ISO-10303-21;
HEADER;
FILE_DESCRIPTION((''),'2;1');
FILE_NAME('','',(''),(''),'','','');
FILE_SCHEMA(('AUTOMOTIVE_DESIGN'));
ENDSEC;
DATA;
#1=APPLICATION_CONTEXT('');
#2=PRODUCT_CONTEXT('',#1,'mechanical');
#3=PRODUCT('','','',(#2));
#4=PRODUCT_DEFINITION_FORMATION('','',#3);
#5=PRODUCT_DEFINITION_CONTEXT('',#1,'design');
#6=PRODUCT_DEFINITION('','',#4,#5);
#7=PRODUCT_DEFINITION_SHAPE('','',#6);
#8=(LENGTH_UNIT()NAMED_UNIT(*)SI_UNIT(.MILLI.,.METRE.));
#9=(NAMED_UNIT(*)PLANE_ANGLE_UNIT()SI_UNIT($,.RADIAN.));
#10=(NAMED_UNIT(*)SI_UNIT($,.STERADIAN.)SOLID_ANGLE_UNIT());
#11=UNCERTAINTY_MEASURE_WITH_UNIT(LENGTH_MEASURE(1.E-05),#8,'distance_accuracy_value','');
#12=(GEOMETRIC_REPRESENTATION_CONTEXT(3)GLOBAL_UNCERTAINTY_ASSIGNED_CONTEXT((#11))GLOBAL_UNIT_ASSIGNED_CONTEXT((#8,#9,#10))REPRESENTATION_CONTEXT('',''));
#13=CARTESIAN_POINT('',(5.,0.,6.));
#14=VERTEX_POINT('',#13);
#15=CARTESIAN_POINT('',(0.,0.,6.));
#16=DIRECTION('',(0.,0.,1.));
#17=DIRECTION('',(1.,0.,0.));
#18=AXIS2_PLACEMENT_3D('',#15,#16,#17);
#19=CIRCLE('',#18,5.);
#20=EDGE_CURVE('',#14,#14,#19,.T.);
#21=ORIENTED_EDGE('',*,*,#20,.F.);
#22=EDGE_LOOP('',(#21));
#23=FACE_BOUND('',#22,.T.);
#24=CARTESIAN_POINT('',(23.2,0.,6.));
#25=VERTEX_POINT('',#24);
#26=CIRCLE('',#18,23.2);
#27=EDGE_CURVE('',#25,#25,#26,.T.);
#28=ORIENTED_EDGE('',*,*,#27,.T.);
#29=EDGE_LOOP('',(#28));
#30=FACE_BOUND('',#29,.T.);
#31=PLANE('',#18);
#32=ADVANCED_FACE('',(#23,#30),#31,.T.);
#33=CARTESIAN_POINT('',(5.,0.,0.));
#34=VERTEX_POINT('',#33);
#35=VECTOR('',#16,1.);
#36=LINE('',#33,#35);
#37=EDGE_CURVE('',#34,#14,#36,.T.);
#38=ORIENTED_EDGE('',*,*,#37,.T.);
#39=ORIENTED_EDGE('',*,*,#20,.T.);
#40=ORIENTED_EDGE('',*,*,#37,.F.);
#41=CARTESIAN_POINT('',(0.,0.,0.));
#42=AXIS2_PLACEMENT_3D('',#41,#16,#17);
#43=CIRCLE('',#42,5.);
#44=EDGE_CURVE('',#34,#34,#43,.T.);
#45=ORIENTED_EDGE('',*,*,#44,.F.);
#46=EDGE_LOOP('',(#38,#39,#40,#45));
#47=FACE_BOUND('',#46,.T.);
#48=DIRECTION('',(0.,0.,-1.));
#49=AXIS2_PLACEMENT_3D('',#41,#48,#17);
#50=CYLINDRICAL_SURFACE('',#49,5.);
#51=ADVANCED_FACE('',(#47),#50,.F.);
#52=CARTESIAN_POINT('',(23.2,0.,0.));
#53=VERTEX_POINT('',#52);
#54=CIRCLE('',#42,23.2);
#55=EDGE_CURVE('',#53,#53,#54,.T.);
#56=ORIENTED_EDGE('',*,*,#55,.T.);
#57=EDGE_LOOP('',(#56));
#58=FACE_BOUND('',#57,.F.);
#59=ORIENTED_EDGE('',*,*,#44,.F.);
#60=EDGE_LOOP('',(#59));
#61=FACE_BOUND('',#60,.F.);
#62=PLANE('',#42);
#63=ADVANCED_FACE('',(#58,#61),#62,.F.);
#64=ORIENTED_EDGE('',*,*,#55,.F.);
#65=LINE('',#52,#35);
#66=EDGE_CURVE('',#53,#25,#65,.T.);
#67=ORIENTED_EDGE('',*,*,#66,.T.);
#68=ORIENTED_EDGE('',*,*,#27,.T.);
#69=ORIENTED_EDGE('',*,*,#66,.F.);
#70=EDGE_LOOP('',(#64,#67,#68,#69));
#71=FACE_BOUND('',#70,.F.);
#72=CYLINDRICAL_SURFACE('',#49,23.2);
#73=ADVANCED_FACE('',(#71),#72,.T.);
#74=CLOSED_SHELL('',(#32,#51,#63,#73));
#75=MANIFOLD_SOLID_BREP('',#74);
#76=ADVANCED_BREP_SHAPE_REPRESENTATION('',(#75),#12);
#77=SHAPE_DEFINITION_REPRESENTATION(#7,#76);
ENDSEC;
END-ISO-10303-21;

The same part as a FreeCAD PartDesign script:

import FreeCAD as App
import Part
import Sketcher
from FreeCAD import Vector

doc = App.newDocument("Part")
body = doc.addObject("PartDesign::Body", "Body")

sketch1 = doc.addObject("Sketcher::SketchObject", "Sketch")
body.addObject(sketch1)
sketch1.AttachmentSupport = (doc.XY_Plane, [""])
sketch1.MapMode = "FlatFace"
sketch1.addGeometry(Part.Circle(Vector(0, 0, 0), Vector(0, 0, 1), 23), False)
sketch1.addGeometry(Part.Circle(Vector(0, 0, 0), Vector(0, 0, 1), 5), False)
sketch1.addConstraint(Sketcher.Constraint("Coincident", 0, 3, -1, 1))
sketch1.addConstraint(Sketcher.Constraint("Coincident", 1, 3, -1, 1))
sketch1.addConstraint(Sketcher.Constraint("Diameter", 1, 10.0))
sketch1.addConstraint(Sketcher.Constraint("Diameter", 0, 46.4))
pad1 = doc.addObject("PartDesign::Pad", "Pad")
body.addObject(pad1)
pad1.Profile = sketch1
pad1.Length = 6

doc.recompute()
